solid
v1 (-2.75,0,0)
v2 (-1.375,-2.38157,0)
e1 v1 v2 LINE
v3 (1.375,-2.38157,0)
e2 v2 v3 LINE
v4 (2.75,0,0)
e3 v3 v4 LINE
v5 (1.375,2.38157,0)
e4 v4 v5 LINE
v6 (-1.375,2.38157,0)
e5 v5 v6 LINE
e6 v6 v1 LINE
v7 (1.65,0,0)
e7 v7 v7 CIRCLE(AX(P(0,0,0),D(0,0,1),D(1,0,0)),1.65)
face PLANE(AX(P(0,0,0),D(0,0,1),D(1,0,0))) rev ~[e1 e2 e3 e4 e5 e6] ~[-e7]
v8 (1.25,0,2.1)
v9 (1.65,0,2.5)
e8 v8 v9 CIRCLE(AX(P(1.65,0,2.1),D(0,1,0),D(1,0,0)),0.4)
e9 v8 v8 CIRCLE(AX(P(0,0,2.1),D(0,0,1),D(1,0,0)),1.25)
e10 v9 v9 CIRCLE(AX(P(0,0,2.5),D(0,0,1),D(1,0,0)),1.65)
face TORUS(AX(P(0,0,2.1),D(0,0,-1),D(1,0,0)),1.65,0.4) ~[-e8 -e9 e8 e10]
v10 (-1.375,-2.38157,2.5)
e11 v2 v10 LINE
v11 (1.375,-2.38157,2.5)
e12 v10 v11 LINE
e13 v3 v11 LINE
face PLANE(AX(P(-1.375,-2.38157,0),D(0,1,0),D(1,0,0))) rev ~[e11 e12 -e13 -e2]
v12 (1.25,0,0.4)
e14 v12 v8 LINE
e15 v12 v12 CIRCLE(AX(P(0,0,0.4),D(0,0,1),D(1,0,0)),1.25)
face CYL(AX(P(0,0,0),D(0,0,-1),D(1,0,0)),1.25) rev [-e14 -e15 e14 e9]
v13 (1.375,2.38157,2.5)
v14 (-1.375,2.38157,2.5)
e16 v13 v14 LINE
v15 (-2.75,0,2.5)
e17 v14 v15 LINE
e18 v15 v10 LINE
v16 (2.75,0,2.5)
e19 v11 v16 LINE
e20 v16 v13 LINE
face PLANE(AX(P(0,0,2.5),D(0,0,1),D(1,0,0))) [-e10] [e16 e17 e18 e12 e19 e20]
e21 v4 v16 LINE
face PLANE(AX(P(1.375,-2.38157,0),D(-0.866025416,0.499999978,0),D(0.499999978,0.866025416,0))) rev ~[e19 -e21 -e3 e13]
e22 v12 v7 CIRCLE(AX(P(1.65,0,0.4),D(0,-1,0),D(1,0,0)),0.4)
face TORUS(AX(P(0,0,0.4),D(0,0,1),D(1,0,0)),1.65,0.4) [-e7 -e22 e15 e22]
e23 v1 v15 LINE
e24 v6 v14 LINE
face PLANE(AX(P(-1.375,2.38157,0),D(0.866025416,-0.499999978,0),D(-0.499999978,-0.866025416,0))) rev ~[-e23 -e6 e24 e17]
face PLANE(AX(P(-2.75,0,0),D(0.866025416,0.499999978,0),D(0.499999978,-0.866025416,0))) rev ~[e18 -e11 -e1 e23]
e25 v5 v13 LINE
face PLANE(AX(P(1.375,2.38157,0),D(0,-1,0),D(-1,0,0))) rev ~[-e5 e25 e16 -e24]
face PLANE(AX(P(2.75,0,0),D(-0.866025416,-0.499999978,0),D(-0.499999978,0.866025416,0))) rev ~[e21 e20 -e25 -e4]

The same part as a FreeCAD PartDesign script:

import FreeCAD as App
import Part
import Sketcher
from FreeCAD import Vector
Q = App.Units.Quantity


def edges_at(feature, points):
    """Names of the edges that pass closest to the given points."""
    edges = feature.Shape.Edges
    near = lambda p: min(range(len(edges)), key=lambda i: edges[i].distToShape(Part.Vertex(*p))[0])
    return sorted({f"Edge{near(p) + 1}" for p in points})

doc = App.newDocument("Part")
body = doc.addObject("PartDesign::Body", "Body")

sketch1 = body.newObject("Sketcher::SketchObject", "Sketch")
sketch1.AttachmentSupport = (doc.getObject("XY_Plane"), [""])
sketch1.MapMode = "FlatFace"
sketch1.addGeometry(Part.LineSegment(Vector(1.375, 2.38157, 0), Vector(-1.375, 2.38157, 0)), False)
sketch1.addGeometry(Part.LineSegment(Vector(-1.375, 2.38157, 0), Vector(-2.75, 0, 0)), False)
sketch1.addGeometry(Part.LineSegment(Vector(-2.75, 0, 0), Vector(-1.375, -2.38157, 0)), False)
sketch1.addGeometry(Part.LineSegment(Vector(-1.375, -2.38157, 0), Vector(1.375, -2.38157, 0)), False)
sketch1.addGeometry(Part.LineSegment(Vector(1.375, -2.38157, 0), Vector(2.75, 0, 0)), False)
sketch1.addGeometry(Part.LineSegment(Vector(2.75, 0, 0), Vector(1.375, 2.38157, 0)), False)
sketch1.addGeometry(Part.Circle(Vector(0, 0, 0), Vector(0, 0, 1), 1.25), False)
sketch1.addConstraint(Sketcher.Constraint("Coincident", 0, 2, 1, 1))
sketch1.addConstraint(Sketcher.Constraint("Coincident", 1, 2, 2, 1))
sketch1.addConstraint(Sketcher.Constraint("Coincident", 2, 2, 3, 1))
sketch1.addConstraint(Sketcher.Constraint("Coincident", 3, 2, 4, 1))
sketch1.addConstraint(Sketcher.Constraint("Coincident", 4, 2, 5, 1))
sketch1.addConstraint(Sketcher.Constraint("Coincident", 5, 2, 0, 1))
sketch1.addConstraint(Sketcher.Constraint("Horizontal", 0))
sketch1.addConstraint(Sketcher.Constraint("Horizontal", 3))
sketch1.addConstraint(Sketcher.Constraint("Coincident", 6, 3, -1, 1))
sketch1.addConstraint(Sketcher.Constraint("Symmetric", 0, 2, 3, 2, -1, 1))
sketch1.addConstraint(Sketcher.Constraint("Symmetric", 1, 2, 4, 2, -1, 1))
sketch1.addConstraint(Sketcher.Constraint("PointOnObject", 1, 2, -1))
sketch1.addConstraint(Sketcher.Constraint("Parallel", 2, 5))
sketch1.addConstraint(Sketcher.Constraint("Vertical", 0, 2, 2, 2))
sketch1.addConstraint(Sketcher.Constraint("Diameter", 6, Q("2.5 mm")))
sketch1.addConstraint(Sketcher.Constraint("Angle", 1, Q("-119.999999 deg")))
sketch1.addConstraint(Sketcher.Constraint("DistanceX", 0, 2, 0, 1, Q("2.75 mm")))
sketch1.addConstraint(Sketcher.Constraint("DistanceX", 1, 2, 4, 2, Q("5.5 mm")))
pad1 = body.newObject("PartDesign::Pad", "Pad")
pad1.Profile = sketch1
pad1.Length = 2.5
doc.recompute()

fillet = body.newObject("PartDesign::Fillet", "Fillet")
fillet.Base = (pad1, edges_at(pad1, [(-1.25, 0, 0)]))
fillet.Radius = 0.4
doc.recompute()

fillet2 = body.newObject("PartDesign::Fillet", "Fillet001")
fillet2.Base = (fillet, edges_at(fillet, [(-1.25, 0, 2.5)]))
fillet2.Radius = 0.4

doc.recompute()
